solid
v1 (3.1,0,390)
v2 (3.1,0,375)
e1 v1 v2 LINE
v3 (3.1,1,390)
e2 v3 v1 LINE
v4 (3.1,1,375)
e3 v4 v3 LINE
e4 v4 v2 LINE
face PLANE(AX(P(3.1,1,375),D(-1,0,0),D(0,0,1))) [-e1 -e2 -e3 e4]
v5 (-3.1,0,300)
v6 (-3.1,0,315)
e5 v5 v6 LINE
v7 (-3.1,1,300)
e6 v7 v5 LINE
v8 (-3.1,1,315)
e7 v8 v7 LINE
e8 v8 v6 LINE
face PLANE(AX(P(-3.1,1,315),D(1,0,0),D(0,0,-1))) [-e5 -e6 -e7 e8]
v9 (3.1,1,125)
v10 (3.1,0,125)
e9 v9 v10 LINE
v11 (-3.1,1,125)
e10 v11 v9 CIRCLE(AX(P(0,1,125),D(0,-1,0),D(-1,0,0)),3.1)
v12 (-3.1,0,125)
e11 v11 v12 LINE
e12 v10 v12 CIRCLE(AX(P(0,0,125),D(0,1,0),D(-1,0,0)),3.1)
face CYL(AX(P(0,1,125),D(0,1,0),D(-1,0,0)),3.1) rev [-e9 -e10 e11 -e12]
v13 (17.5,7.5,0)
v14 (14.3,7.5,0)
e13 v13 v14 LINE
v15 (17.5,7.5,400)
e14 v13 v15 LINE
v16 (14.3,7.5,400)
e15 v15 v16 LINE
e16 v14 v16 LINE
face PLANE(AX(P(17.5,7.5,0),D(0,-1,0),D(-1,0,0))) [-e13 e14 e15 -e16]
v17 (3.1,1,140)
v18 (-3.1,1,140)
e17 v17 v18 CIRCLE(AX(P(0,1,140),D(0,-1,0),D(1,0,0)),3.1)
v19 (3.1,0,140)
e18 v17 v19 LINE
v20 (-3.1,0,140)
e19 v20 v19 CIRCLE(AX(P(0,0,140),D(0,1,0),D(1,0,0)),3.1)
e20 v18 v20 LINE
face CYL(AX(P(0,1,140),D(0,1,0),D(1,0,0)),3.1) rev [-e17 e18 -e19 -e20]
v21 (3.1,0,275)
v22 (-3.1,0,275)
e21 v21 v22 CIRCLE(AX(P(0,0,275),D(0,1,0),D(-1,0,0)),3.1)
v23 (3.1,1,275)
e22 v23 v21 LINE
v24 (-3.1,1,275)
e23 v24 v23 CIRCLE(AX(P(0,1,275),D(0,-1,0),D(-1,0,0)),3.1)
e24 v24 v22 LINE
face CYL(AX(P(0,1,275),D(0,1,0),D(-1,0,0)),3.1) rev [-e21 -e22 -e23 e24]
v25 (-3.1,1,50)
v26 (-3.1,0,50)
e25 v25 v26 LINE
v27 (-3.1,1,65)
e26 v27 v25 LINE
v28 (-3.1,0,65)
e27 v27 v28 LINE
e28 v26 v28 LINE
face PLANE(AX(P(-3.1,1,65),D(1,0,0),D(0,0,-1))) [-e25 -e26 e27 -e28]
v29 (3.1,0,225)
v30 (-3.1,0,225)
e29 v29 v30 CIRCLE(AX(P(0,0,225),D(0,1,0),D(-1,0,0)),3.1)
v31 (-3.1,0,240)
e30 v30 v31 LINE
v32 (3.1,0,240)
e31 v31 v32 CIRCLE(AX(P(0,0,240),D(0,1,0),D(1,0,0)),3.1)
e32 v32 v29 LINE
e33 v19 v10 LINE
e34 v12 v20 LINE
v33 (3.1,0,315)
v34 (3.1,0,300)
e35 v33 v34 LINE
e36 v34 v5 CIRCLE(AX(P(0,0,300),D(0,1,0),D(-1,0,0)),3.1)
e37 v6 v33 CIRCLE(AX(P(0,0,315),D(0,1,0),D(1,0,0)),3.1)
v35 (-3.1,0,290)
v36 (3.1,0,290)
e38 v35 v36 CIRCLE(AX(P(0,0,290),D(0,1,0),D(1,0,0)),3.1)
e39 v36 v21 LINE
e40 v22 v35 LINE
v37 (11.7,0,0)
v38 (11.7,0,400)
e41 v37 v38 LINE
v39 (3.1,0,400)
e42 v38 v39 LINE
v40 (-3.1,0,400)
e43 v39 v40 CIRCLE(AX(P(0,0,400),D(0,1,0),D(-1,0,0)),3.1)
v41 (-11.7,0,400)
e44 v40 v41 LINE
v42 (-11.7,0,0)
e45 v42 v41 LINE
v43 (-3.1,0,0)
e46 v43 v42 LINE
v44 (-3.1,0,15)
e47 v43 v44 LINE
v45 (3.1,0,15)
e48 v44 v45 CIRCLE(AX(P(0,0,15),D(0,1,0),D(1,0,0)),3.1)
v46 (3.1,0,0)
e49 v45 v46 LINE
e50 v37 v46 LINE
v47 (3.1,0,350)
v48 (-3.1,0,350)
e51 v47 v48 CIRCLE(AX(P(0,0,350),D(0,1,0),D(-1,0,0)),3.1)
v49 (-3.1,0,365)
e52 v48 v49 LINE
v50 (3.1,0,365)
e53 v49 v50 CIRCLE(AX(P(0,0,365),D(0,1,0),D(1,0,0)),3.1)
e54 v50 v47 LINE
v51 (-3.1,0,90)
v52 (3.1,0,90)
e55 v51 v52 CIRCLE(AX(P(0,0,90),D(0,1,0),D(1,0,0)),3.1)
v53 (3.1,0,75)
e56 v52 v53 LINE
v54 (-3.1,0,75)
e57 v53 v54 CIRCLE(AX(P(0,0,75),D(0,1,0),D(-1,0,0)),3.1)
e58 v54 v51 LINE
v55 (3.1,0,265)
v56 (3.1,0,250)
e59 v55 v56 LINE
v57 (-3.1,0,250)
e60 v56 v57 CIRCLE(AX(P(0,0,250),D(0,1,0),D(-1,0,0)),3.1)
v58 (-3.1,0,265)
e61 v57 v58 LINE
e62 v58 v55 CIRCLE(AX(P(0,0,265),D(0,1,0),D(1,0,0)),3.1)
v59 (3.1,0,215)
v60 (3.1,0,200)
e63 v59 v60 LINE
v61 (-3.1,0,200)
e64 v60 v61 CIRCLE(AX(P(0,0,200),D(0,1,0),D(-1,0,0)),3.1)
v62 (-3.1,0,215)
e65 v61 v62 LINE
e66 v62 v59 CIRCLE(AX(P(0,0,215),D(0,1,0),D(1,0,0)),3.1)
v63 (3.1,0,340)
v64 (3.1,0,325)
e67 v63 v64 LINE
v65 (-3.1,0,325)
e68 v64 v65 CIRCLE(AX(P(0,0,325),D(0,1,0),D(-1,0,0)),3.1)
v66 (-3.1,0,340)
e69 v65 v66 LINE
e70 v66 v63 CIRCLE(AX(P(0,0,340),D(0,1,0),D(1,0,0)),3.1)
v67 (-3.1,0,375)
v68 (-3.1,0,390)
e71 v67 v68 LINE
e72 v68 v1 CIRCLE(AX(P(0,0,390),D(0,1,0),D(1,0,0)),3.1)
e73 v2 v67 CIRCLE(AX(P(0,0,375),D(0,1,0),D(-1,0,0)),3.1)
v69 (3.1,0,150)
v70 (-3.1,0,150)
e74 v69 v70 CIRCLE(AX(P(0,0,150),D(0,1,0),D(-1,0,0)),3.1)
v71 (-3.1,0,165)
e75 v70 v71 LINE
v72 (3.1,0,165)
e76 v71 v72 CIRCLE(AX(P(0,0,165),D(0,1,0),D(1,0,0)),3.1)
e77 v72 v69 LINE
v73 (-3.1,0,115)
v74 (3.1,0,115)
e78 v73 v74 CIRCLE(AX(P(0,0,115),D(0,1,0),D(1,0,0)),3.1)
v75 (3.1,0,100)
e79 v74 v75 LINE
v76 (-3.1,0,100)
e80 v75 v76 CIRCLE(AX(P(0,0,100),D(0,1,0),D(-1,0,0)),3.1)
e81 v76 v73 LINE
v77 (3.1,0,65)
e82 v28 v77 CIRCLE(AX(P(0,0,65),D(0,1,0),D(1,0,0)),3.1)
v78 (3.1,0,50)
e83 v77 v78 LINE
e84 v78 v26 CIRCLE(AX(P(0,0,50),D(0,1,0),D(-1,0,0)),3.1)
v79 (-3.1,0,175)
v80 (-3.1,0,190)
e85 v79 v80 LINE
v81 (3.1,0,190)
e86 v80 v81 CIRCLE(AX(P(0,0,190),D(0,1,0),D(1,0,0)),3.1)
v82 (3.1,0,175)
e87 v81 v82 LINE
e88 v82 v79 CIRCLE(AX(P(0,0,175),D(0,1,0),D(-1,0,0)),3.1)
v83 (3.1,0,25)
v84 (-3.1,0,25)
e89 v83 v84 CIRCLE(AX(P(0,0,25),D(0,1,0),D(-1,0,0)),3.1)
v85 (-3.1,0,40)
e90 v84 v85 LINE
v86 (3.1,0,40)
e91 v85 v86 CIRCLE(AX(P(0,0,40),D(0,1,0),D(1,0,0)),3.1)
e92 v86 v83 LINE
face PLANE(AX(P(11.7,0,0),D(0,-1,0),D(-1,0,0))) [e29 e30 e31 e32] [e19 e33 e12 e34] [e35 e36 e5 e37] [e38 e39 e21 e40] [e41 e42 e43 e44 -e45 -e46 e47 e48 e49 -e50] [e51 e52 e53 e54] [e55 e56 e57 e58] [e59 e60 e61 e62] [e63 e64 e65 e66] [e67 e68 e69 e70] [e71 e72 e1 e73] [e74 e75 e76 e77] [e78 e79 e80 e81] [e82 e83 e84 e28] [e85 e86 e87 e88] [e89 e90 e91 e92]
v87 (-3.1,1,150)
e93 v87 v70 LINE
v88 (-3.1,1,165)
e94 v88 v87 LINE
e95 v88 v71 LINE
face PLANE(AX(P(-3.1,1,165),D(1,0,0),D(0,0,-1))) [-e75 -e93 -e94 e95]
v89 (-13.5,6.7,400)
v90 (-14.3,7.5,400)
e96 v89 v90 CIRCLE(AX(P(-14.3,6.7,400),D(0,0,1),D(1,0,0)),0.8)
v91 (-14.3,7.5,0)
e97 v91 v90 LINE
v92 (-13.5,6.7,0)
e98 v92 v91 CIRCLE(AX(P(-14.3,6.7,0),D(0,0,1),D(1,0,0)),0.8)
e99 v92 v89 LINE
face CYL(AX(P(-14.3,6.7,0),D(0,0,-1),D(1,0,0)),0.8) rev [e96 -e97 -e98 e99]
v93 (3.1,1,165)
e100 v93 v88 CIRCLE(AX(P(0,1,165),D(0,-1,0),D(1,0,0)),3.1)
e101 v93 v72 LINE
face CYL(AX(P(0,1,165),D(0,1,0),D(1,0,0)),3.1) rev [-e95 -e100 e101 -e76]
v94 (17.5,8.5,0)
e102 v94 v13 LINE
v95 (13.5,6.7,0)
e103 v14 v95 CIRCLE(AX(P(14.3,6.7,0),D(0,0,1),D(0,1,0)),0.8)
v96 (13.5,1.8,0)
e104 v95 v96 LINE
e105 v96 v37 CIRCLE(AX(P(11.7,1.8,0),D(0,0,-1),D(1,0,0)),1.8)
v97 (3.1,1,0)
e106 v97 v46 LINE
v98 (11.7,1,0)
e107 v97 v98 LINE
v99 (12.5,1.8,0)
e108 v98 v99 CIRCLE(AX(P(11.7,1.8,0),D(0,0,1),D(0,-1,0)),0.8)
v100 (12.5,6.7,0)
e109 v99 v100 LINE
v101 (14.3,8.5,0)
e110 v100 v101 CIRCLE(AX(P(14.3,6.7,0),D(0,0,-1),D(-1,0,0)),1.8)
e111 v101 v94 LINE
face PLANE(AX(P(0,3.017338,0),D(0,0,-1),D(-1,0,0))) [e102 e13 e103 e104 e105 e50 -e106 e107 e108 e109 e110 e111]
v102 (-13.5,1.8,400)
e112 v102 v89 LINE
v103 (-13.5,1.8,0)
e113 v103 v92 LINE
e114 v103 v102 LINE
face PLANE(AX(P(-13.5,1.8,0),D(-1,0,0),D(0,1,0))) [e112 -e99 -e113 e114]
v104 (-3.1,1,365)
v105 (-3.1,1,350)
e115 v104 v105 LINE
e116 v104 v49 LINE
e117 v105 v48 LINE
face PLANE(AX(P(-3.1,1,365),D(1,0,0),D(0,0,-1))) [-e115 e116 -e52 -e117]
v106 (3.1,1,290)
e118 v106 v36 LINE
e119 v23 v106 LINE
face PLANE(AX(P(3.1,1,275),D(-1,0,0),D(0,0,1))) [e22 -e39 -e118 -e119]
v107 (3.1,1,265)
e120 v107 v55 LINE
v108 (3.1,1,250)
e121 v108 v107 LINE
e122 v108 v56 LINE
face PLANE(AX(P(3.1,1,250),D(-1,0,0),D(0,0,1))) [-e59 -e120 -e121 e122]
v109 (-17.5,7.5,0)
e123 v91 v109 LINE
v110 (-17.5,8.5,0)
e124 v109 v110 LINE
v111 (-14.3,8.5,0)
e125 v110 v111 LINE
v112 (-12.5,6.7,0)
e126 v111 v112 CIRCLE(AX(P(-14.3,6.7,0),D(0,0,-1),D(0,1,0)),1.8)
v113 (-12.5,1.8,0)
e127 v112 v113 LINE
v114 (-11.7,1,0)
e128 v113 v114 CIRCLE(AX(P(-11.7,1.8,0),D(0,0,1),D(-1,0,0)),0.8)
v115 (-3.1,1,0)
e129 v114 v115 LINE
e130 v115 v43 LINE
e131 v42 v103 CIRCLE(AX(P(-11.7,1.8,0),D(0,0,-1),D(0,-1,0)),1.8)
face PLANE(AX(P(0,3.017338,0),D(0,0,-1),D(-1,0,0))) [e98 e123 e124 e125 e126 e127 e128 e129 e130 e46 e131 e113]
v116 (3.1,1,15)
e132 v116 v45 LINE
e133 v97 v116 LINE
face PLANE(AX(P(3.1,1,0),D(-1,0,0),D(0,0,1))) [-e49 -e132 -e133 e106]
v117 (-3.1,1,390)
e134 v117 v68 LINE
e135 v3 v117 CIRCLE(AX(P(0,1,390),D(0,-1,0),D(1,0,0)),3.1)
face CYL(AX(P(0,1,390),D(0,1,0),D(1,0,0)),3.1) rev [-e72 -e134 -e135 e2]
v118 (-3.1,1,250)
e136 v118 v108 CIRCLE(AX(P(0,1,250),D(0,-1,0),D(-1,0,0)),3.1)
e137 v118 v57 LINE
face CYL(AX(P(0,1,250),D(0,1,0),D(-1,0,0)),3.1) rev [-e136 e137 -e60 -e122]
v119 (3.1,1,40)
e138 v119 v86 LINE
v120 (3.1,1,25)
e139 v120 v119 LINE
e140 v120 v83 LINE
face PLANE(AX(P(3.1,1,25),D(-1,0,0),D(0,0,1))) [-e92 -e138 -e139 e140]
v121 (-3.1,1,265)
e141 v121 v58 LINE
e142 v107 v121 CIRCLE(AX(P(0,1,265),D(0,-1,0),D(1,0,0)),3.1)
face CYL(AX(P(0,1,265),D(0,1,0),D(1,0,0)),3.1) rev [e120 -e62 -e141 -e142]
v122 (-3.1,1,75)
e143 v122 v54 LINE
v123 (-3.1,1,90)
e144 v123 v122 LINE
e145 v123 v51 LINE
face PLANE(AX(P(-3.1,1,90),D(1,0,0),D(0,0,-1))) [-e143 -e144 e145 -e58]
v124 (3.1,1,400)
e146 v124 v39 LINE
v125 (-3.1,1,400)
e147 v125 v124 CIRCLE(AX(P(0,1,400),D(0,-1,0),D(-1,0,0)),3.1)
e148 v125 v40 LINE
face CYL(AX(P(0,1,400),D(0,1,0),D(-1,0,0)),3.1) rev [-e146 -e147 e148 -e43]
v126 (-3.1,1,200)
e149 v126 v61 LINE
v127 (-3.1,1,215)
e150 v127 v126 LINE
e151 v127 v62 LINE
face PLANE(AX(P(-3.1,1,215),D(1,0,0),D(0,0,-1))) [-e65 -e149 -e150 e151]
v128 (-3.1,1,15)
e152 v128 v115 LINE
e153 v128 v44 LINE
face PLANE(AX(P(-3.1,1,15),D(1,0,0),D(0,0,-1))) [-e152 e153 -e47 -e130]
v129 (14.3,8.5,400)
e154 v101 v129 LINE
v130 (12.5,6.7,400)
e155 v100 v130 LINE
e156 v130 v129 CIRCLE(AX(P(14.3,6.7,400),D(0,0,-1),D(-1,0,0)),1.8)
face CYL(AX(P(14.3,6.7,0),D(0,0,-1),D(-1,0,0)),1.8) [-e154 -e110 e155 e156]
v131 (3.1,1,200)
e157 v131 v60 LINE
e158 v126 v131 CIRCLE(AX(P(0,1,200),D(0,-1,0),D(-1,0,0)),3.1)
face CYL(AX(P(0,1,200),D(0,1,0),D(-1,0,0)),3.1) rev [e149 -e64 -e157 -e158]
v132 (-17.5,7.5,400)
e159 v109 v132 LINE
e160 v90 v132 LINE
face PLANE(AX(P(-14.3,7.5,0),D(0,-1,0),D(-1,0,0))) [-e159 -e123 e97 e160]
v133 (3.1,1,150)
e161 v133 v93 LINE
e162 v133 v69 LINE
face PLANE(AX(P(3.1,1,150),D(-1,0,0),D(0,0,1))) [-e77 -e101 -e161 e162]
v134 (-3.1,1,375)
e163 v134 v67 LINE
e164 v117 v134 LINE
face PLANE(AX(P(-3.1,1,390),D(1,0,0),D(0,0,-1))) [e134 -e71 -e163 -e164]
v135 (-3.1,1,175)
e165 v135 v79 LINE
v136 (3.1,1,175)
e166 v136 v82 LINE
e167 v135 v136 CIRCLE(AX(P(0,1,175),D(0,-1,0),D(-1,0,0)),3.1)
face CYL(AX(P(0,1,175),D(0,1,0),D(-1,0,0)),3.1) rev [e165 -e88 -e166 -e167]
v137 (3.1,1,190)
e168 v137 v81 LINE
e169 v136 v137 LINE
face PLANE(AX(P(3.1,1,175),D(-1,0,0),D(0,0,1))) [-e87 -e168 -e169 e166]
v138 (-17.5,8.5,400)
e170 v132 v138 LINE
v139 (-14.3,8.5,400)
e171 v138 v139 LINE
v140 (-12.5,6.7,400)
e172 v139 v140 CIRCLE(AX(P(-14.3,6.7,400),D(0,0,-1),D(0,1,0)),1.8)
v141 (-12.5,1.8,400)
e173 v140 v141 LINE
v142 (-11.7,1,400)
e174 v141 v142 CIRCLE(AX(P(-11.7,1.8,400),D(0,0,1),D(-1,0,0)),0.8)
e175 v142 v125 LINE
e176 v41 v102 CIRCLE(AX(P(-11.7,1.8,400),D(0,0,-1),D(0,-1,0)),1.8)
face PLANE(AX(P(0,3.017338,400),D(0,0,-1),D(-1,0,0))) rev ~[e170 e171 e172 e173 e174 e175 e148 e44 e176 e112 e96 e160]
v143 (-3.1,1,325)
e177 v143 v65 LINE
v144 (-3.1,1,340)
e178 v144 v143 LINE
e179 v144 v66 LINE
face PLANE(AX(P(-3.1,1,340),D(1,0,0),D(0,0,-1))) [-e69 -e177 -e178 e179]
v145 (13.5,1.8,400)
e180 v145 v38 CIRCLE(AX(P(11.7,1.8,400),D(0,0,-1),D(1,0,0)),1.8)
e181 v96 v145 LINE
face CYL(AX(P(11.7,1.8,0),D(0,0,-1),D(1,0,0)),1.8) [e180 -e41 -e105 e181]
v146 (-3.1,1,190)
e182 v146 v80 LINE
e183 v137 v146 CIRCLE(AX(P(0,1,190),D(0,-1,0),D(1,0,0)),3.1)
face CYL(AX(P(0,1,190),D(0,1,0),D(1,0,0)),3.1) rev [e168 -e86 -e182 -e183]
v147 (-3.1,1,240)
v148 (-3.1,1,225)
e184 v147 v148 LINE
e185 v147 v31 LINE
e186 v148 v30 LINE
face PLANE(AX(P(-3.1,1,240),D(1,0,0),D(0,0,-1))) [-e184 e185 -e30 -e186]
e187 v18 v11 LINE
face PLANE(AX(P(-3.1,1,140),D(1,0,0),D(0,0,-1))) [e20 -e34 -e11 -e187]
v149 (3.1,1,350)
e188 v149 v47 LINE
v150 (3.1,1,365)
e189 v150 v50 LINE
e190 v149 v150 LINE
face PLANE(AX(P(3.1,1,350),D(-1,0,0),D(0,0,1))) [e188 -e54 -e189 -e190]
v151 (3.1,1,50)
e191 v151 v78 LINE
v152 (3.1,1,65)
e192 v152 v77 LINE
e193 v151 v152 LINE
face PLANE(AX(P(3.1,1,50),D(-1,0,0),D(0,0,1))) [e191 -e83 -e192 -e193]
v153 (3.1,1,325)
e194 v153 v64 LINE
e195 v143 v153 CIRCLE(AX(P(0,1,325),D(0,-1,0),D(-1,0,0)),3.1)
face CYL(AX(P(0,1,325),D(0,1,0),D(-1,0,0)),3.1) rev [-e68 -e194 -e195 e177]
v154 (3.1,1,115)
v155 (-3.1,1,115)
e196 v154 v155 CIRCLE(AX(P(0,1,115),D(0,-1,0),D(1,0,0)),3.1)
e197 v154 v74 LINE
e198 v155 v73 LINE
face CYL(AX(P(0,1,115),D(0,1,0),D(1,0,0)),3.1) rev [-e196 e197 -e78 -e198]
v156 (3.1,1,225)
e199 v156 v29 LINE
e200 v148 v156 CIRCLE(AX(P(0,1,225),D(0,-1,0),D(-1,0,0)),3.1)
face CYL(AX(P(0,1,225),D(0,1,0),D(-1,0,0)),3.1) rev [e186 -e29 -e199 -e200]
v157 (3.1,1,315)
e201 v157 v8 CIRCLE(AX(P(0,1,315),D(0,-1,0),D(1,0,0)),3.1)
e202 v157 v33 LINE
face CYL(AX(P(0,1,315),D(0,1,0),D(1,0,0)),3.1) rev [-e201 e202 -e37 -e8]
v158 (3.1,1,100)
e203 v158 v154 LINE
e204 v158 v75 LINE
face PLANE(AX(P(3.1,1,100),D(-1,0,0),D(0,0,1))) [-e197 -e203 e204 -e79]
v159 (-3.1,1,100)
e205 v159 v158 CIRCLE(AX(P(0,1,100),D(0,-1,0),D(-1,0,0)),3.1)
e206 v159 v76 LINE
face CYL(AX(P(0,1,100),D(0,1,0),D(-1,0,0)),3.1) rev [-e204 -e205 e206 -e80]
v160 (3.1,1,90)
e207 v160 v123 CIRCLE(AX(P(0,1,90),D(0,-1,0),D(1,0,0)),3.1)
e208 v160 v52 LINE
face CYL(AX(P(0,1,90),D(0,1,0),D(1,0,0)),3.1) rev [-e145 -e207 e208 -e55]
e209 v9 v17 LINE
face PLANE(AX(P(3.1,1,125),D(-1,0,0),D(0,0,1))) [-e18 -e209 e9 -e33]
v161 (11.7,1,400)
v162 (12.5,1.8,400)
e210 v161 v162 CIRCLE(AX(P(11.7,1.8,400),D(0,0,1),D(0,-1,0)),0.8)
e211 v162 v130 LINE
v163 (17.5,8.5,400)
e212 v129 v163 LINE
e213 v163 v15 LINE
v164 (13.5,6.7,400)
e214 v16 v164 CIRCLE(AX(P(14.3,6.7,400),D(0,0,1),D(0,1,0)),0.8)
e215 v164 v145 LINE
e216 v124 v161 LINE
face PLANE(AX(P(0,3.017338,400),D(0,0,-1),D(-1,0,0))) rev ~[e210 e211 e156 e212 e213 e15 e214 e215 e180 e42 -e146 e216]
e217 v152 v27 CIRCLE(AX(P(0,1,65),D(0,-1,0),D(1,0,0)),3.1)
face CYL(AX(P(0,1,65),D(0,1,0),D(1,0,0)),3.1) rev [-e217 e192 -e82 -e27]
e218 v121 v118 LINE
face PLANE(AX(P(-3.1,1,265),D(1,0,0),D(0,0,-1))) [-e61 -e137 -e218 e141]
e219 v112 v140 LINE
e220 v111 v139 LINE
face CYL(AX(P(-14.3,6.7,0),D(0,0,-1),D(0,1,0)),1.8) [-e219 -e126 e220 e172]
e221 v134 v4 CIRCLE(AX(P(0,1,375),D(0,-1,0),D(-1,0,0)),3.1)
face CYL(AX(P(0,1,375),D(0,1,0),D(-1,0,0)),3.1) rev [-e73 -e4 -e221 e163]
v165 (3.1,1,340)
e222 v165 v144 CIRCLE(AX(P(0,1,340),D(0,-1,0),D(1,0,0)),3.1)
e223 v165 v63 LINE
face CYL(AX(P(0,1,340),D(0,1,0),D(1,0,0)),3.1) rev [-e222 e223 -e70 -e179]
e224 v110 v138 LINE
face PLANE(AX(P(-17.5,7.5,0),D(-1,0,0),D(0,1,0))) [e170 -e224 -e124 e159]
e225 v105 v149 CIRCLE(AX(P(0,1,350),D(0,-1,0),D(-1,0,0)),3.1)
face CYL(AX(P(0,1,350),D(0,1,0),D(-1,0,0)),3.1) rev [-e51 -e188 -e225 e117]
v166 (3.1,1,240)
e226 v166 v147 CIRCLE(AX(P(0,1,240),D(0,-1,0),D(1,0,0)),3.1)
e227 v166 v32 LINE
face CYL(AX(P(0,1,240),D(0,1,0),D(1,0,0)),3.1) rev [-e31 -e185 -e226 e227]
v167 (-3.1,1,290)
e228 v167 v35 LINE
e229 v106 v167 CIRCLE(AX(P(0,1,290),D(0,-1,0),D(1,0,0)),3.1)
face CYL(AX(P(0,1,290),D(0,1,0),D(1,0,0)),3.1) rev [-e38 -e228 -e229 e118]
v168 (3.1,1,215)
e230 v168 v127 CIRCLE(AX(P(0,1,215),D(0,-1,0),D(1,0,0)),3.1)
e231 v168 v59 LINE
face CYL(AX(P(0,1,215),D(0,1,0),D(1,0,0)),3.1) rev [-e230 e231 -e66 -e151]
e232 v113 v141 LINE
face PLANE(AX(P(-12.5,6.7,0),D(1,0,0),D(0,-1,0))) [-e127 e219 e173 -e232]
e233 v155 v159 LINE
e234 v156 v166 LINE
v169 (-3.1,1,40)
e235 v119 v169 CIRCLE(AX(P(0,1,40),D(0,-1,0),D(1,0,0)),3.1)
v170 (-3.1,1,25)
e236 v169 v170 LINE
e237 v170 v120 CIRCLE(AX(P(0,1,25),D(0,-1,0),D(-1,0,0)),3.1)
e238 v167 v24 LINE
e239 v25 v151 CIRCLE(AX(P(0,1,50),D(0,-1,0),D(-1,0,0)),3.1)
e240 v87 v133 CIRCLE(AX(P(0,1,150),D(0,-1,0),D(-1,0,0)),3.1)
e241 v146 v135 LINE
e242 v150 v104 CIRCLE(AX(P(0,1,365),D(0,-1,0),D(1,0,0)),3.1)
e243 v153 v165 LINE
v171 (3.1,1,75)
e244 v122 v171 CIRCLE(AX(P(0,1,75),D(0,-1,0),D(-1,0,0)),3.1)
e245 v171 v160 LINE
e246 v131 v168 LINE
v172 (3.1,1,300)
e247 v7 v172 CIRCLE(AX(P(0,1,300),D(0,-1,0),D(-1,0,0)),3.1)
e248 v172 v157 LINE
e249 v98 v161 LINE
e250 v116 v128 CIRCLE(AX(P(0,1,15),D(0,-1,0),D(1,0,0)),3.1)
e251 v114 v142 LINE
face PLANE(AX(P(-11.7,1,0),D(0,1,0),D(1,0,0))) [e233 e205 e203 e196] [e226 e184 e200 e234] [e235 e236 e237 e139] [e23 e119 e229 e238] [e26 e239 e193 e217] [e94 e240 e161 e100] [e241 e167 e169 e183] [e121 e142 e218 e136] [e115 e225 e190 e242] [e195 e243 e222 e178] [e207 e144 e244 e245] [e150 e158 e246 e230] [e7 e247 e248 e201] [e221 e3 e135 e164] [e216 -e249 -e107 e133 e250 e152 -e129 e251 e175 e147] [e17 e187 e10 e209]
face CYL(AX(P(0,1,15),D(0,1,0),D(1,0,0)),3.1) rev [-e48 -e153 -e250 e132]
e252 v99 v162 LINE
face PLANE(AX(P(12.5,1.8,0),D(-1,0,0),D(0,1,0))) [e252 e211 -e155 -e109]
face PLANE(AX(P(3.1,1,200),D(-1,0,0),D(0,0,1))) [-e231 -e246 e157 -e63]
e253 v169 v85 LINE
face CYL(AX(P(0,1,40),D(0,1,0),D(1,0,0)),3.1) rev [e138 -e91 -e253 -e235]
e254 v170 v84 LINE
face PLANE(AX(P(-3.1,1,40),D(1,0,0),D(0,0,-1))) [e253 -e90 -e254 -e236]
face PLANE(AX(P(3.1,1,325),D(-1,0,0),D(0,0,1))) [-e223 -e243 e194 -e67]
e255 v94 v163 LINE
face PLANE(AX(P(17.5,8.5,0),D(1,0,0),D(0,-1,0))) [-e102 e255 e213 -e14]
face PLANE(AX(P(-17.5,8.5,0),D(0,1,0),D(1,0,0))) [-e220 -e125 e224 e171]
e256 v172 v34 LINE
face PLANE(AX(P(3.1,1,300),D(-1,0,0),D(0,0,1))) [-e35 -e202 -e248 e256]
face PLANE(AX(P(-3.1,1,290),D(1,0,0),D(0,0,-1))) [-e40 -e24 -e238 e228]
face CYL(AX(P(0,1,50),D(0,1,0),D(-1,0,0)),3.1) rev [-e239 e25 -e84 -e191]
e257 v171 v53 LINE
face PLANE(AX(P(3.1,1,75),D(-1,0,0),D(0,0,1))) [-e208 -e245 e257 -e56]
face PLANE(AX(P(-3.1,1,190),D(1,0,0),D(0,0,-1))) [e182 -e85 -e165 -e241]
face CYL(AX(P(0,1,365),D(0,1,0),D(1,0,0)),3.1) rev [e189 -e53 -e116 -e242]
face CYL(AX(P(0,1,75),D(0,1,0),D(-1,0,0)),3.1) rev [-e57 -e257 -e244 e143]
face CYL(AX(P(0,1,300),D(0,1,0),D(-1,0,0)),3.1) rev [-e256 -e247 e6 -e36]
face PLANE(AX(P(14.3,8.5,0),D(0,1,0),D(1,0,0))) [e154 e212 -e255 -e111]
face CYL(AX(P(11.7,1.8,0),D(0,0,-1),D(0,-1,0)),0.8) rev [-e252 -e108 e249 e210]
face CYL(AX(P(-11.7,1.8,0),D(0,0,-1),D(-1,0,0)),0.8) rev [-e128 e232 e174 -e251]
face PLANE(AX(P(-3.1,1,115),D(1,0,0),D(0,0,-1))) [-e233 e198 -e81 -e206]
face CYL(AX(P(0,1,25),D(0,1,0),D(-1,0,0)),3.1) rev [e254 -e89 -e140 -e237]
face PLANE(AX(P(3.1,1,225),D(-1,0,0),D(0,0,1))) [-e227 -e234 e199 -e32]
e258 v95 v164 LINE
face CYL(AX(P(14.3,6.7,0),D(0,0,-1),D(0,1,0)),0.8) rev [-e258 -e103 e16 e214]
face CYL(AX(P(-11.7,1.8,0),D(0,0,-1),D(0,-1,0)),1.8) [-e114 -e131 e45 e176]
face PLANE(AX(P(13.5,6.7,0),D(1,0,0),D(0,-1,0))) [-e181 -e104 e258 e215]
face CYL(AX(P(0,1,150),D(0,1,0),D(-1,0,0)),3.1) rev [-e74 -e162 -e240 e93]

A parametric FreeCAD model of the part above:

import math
import FreeCAD as App
import Part
import Sketcher

doc = App.newDocument("Part")
body = doc.addObject("PartDesign::Body", "Body")

# Sketch on XY plane
sketch1 = doc.addObject("Sketcher::SketchObject", "Sketch")
body.addObject(sketch1)
sketch1.AttachmentSupport = (doc.XY_Plane, [""])
sketch1.MapMode = "FlatFace"
sketch1.addGeometry(Part.ArcOfCircle(Part.Circle(App.Vector(-11.7, 1.8, 0), App.Vector(0, 0, 1), 1.8), math.radians(180), math.radians(270)), False)
sketch1.addGeometry(Part.LineSegment(App.Vector(-11.7, 0, 0), App.Vector(11.7, 0, 0)), False)
sketch1.addGeometry(Part.ArcOfCircle(Part.Circle(App.Vector(11.7, 1.8, 0), App.Vector(0, 0, 1), 1.8), math.radians(-90), math.radians(0)), False)
sketch1.addGeometry(Part.LineSegment(App.Vector(13.5, 1.8, 0), App.Vector(13.5, 6.7, 0)), False)
sketch1.addGeometry(Part.ArcOfCircle(Part.Circle(App.Vector(14.3, 6.7, 0), App.Vector(0, 0, 1), 0.8), math.radians(90), math.radians(180)), False)
sketch1.addGeometry(Part.LineSegment(App.Vector(14.3, 7.5, 0), App.Vector(17.5, 7.5, 0)), False)
sketch1.addGeometry(Part.LineSegment(App.Vector(17.5, 7.5, 0), App.Vector(17.5, 8.5, 0)), False)
sketch1.addGeometry(Part.LineSegment(App.Vector(17.5, 8.5, 0), App.Vector(14.3, 8.5, 0)), False)
sketch1.addGeometry(Part.ArcOfCircle(Part.Circle(App.Vector(14.3, 6.7, 0), App.Vector(0, 0, 1), 1.8), math.radians(90), math.radians(180)), False)
sketch1.addGeometry(Part.LineSegment(App.Vector(12.5, 6.7, 0), App.Vector(12.5, 1.8, 0)), False)
sketch1.addGeometry(Part.ArcOfCircle(Part.Circle(App.Vector(11.7, 1.8, 0), App.Vector(0, 0, 1), 0.8), math.radians(-90), math.radians(0)), False)
sketch1.addGeometry(Part.LineSegment(App.Vector(11.7, 1, 0), App.Vector(-11.7, 1, 0)), False)
sketch1.addGeometry(Part.ArcOfCircle(Part.Circle(App.Vector(-11.7, 1.8, 0), App.Vector(0, 0, 1), 0.8), math.radians(180), math.radians(270)), False)
sketch1.addGeometry(Part.LineSegment(App.Vector(-12.5, 1.8, 0), App.Vector(-12.5, 6.7, 0)), False)
sketch1.addGeometry(Part.ArcOfCircle(Part.Circle(App.Vector(-14.3, 6.7, 0), App.Vector(0, 0, 1), 1.8), math.radians(0), math.radians(90)), False)
sketch1.addGeometry(Part.LineSegment(App.Vector(-14.3, 8.5, 0), App.Vector(-17.5, 8.5, 0)), False)
sketch1.addGeometry(Part.LineSegment(App.Vector(-17.5, 8.5, 0), App.Vector(-17.5, 7.5, 0)), False)
sketch1.addGeometry(Part.LineSegment(App.Vector(-17.5, 7.5, 0), App.Vector(-14.3, 7.5, 0)), False)
sketch1.addGeometry(Part.ArcOfCircle(Part.Circle(App.Vector(-14.3, 6.7, 0), App.Vector(0, 0, 1), 0.8), math.radians(0), math.radians(90)), False)
sketch1.addGeometry(Part.LineSegment(App.Vector(-13.5, 6.7, 0), App.Vector(-13.5, 1.8, 0)), False)
sketch1.addConstraint(Sketcher.Constraint("Tangent", 0, 2, 1, 1))
sketch1.addConstraint(Sketcher.Constraint("Tangent", 1, 2, 2, 1))
sketch1.addConstraint(Sketcher.Constraint("Tangent", 2, 2, 3, 1))
sketch1.addConstraint(Sketcher.Constraint("Tangent", 3, 2, 4, 2))
sketch1.addConstraint(Sketcher.Constraint("Tangent", 4, 1, 5, 1))
sketch1.addConstraint(Sketcher.Constraint("Coincident", 5, 2, 6, 1))
sketch1.addConstraint(Sketcher.Constraint("Coincident", 6, 2, 7, 1))
sketch1.addConstraint(Sketcher.Constraint("Tangent", 7, 2, 8, 1))
sketch1.addConstraint(Sketcher.Constraint("Tangent", 8, 2, 9, 1))
sketch1.addConstraint(Sketcher.Constraint("Tangent", 9, 2, 10, 2))
sketch1.addConstraint(Sketcher.Constraint("Tangent", 10, 1, 11, 1))
sketch1.addConstraint(Sketcher.Constraint("Tangent", 11, 2, 12, 2))
sketch1.addConstraint(Sketcher.Constraint("Tangent", 12, 1, 13, 1))
sketch1.addConstraint(Sketcher.Constraint("Tangent", 13, 2, 14, 1))
sketch1.addConstraint(Sketcher.Constraint("Tangent", 14, 2, 15, 1))
sketch1.addConstraint(Sketcher.Constraint("Coincident", 15, 2, 16, 1))
sketch1.addConstraint(Sketcher.Constraint("Coincident", 16, 2, 17, 1))
sketch1.addConstraint(Sketcher.Constraint("Tangent", 17, 2, 18, 2))
sketch1.addConstraint(Sketcher.Constraint("Tangent", 18, 1, 19, 1))
sketch1.addConstraint(Sketcher.Constraint("Tangent", 19, 2, 0, 1))
sketch1.addConstraint(Sketcher.Constraint("Horizontal", 1))
sketch1.addConstraint(Sketcher.Constraint("Vertical", 3))
sketch1.addConstraint(Sketcher.Constraint("Horizontal", 5))
sketch1.addConstraint(Sketcher.Constraint("Vertical", 6))
sketch1.addConstraint(Sketcher.Constraint("Horizontal", 7))
sketch1.addConstraint(Sketcher.Constraint("Vertical", 9))
sketch1.addConstraint(Sketcher.Constraint("Horizontal", 11))
sketch1.addConstraint(Sketcher.Constraint("Vertical", 13))
sketch1.addConstraint(Sketcher.Constraint("Horizontal", 15))
sketch1.addConstraint(Sketcher.Constraint("Vertical", 16))
sketch1.addConstraint(Sketcher.Constraint("Horizontal", 17))
sketch1.addConstraint(Sketcher.Constraint("Vertical", 19))
sketch1.addConstraint(Sketcher.Constraint("Coincident", 8, 3, 4, 3))
sketch1.addConstraint(Sketcher.Constraint("Coincident", 10, 3, 2, 3))
sketch1.addConstraint(Sketcher.Constraint("Coincident", 12, 3, 0, 3))
sketch1.addConstraint(Sketcher.Constraint("Coincident", 18, 3, 14, 3))
sketch1.addConstraint(Sketcher.Constraint("Equal", 0, 2))
sketch1.addConstraint(Sketcher.Constraint("Equal", 2, 8))
sketch1.addConstraint(Sketcher.Constraint("Equal", 8, 14))
sketch1.addConstraint(Sketcher.Constraint("Symmetric", 0, 2, 1, 2, -1, 1))
sketch1.addConstraint(Sketcher.Constraint("Symmetric", 6, 2, 15, 2, -2))
sketch1.addConstraint(Sketcher.Constraint("Radius", 0, 1.8))
sketch1.addConstraint(Sketcher.Constraint("Radius", 4, 0.8))
sketch1.addConstraint(Sketcher.Constraint("DistanceX", 1, 1, 1, 2, 23.4))
sketch1.addConstraint(Sketcher.Constraint("DistanceX", 5, 1, 5, 2, 3.2))
sketch1.addConstraint(Sketcher.Constraint("DistanceY", 3, 1, 3, 2, 4.9))
pad1 = doc.addObject("PartDesign::Pad", "Pad")
body.addObject(pad1)
pad1.Profile = sketch1
pad1.Length = 400

# Sketch on XZ plane
sketch2 = doc.addObject("Sketcher::SketchObject", "Sketch001")
body.addObject(sketch2)
sketch2.AttachmentSupport = (doc.XZ_Plane, [""])
sketch2.MapMode = "FlatFace"
sketch2.AttachmentOffset = App.Placement(App.Vector(0, 0, -1), App.Rotation())
sketch2.addGeometry(Part.LineSegment(App.Vector(-3.1, 375, 0), App.Vector(-3.1, 390, 0)), False)
sketch2.addGeometry(Part.ArcOfCircle(Part.Circle(App.Vector(0, 390, 0), App.Vector(0, 0, 1), 3.1), math.radians(0), math.radians(180)), False)
sketch2.addGeometry(Part.LineSegment(App.Vector(3.1, 390, 0), App.Vector(3.1, 375, 0)), False)
sketch2.addGeometry(Part.ArcOfCircle(Part.Circle(App.Vector(0, 375, 0), App.Vector(0, 0, 1), 3.1), math.radians(180), math.radians(360)), False)
sketch2.addGeometry(Part.LineSegment(App.Vector(-3.1, 350, 0), App.Vector(-3.1, 365, 0)), False)
sketch2.addGeometry(Part.ArcOfCircle(Part.Circle(App.Vector(0, 365, 0), App.Vector(0, 0, 1), 3.1), math.radians(0), math.radians(180)), False)
sketch2.addGeometry(Part.LineSegment(App.Vector(3.1, 365, 0), App.Vector(3.1, 350, 0)), False)
sketch2.addGeometry(Part.ArcOfCircle(Part.Circle(App.Vector(0, 350, 0), App.Vector(0, 0, 1), 3.1), math.radians(180), math.radians(360)), False)
sketch2.addGeometry(Part.LineSegment(App.Vector(-3.1, 325, 0), App.Vector(-3.1, 340, 0)), False)
sketch2.addGeometry(Part.ArcOfCircle(Part.Circle(App.Vector(0, 340, 0), App.Vector(0, 0, 1), 3.1), math.radians(0), math.radians(180)), False)
sketch2.addGeometry(Part.LineSegment(App.Vector(3.1, 340, 0), App.Vector(3.1, 325, 0)), False)
sketch2.addGeometry(Part.ArcOfCircle(Part.Circle(App.Vector(0, 325, 0), App.Vector(0, 0, 1), 3.1), math.radians(180), math.radians(360)), False)
sketch2.addGeometry(Part.LineSegment(App.Vector(-3.1, 300, 0), App.Vector(-3.1, 315, 0)), False)
sketch2.addGeometry(Part.ArcOfCircle(Part.Circle(App.Vector(0, 315, 0), App.Vector(0, 0, 1), 3.1), math.radians(0), math.radians(180)), False)
sketch2.addGeometry(Part.LineSegment(App.Vector(3.1, 315, 0), App.Vector(3.1, 300, 0)), False)
sketch2.addGeometry(Part.ArcOfCircle(Part.Circle(App.Vector(0, 300, 0), App.Vector(0, 0, 1), 3.1), math.radians(180), math.radians(360)), False)
sketch2.addGeometry(Part.LineSegment(App.Vector(-3.1, 400, 0), App.Vector(-3.1, 415, 0)), False)
sketch2.addGeometry(Part.ArcOfCircle(Part.Circle(App.Vector(0, 415, 0), App.Vector(0, 0, 1), 3.1), math.radians(0), math.radians(180)), False)
sketch2.addGeometry(Part.LineSegment(App.Vector(3.1, 415, 0), App.Vector(3.1, 400, 0)), False)
sketch2.addGeometry(Part.ArcOfCircle(Part.Circle(App.Vector(0, 400, 0), App.Vector(0, 0, 1), 3.1), math.radians(180), math.radians(360)), False)
sketch2.addGeometry(Part.LineSegment(App.Vector(-3.1, 275, 0), App.Vector(-3.1, 290, 0)), False)
sketch2.addGeometry(Part.ArcOfCircle(Part.Circle(App.Vector(0, 290, 0), App.Vector(0, 0, 1), 3.1), math.radians(0), math.radians(180)), False)
sketch2.addGeometry(Part.LineSegment(App.Vector(3.1, 290, 0), App.Vector(3.1, 275, 0)), False)
sketch2.addGeometry(Part.ArcOfCircle(Part.Circle(App.Vector(0, 275, 0), App.Vector(0, 0, 1), 3.1), math.radians(180), math.radians(360)), False)
sketch2.addGeometry(Part.LineSegment(App.Vector(-3.1, 250, 0), App.Vector(-3.1, 265, 0)), False)
sketch2.addGeometry(Part.ArcOfCircle(Part.Circle(App.Vector(0, 265, 0), App.Vector(0, 0, 1), 3.1), math.radians(0), math.radians(180)), False)
sketch2.addGeometry(Part.LineSegment(App.Vector(3.1, 265, 0), App.Vector(3.1, 250, 0)), False)
sketch2.addGeometry(Part.ArcOfCircle(Part.Circle(App.Vector(0, 250, 0), App.Vector(0, 0, 1), 3.1), math.radians(180), math.radians(360)), False)
sketch2.addGeometry(Part.LineSegment(App.Vector(-3.1, 225, 0), App.Vector(-3.1, 240, 0)), False)
sketch2.addGeometry(Part.ArcOfCircle(Part.Circle(App.Vector(0, 240, 0), App.Vector(0, 0, 1), 3.1), math.radians(0), math.radians(180)), False)
sketch2.addGeometry(Part.LineSegment(App.Vector(3.1, 240, 0), App.Vector(3.1, 225, 0)), False)
sketch2.addGeometry(Part.ArcOfCircle(Part.Circle(App.Vector(0, 225, 0), App.Vector(0, 0, 1), 3.1), math.radians(180), math.radians(360)), False)
sketch2.addGeometry(Part.LineSegment(App.Vector(-3.1, 200, 0), App.Vector(-3.1, 215, 0)), False)
sketch2.addGeometry(Part.ArcOfCircle(Part.Circle(App.Vector(0, 215, 0), App.Vector(0, 0, 1), 3.1), math.radians(0), math.radians(180)), False)
sketch2.addGeometry(Part.LineSegment(App.Vector(3.1, 215, 0), App.Vector(3.1, 200, 0)), False)
sketch2.addGeometry(Part.ArcOfCircle(Part.Circle(App.Vector(0, 200, 0), App.Vector(0, 0, 1), 3.1), math.radians(180), math.radians(360)), False)
sketch2.addGeometry(Part.LineSegment(App.Vector(-3.1, 175, 0), App.Vector(-3.1, 190, 0)), False)
sketch2.addGeometry(Part.ArcOfCircle(Part.Circle(App.Vector(0, 190, 0), App.Vector(0, 0, 1), 3.1), math.radians(0), math.radians(180)), False)
sketch2.addGeometry(Part.LineSegment(App.Vector(3.1, 190, 0), App.Vector(3.1, 175, 0)), False)
sketch2.addGeometry(Part.ArcOfCircle(Part.Circle(App.Vector(0, 175, 0), App.Vector(0, 0, 1), 3.1), math.radians(180), math.radians(360)), False)
sketch2.addGeometry(Part.LineSegment(App.Vector(-3.1, 150, 0), App.Vector(-3.1, 165, 0)), False)
sketch2.addGeometry(Part.ArcOfCircle(Part.Circle(App.Vector(0, 165, 0), App.Vector(0, 0, 1), 3.1), math.radians(0), math.radians(180)), False)
sketch2.addGeometry(Part.LineSegment(App.Vector(3.1, 165, 0), App.Vector(3.1, 150, 0)), False)
sketch2.addGeometry(Part.ArcOfCircle(Part.Circle(App.Vector(0, 150, 0), App.Vector(0, 0, 1), 3.1), math.radians(180), math.radians(360)), False)
sketch2.addGeometry(Part.LineSegment(App.Vector(-3.1, 125, 0), App.Vector(-3.1, 140, 0)), False)
sketch2.addGeometry(Part.ArcOfCircle(Part.Circle(App.Vector(0, 140, 0), App.Vector(0, 0, 1), 3.1), math.radians(0), math.radians(180)), False)
sketch2.addGeometry(Part.LineSegment(App.Vector(3.1, 140, 0), App.Vector(3.1, 125, 0)), False)
sketch2.addGeometry(Part.ArcOfCircle(Part.Circle(App.Vector(0, 125, 0), App.Vector(0, 0, 1), 3.1), math.radians(180), math.radians(360)), False)
sketch2.addGeometry(Part.LineSegment(App.Vector(-3.1, 100, 0), App.Vector(-3.1, 115, 0)), False)
sketch2.addGeometry(Part.ArcOfCircle(Part.Circle(App.Vector(0, 115, 0), App.Vector(0, 0, 1), 3.1), math.radians(0), math.radians(180)), False)
sketch2.addGeometry(Part.LineSegment(App.Vector(3.1, 115, 0), App.Vector(3.1, 100, 0)), False)
sketch2.addGeometry(Part.ArcOfCircle(Part.Circle(App.Vector(0, 100, 0), App.Vector(0, 0, 1), 3.1), math.radians(180), math.radians(360)), False)
sketch2.addGeometry(Part.LineSegment(App.Vector(-3.1, 75, 0), App.Vector(-3.1, 90, 0)), False)
sketch2.addGeometry(Part.ArcOfCircle(Part.Circle(App.Vector(0, 90, 0), App.Vector(0, 0, 1), 3.1), math.radians(0), math.radians(180)), False)
sketch2.addGeometry(Part.LineSegment(App.Vector(3.1, 90, 0), App.Vector(3.1, 75, 0)), False)
sketch2.addGeometry(Part.ArcOfCircle(Part.Circle(App.Vector(0, 75, 0), App.Vector(0, 0, 1), 3.1), math.radians(180), math.radians(360)), False)
sketch2.addGeometry(Part.LineSegment(App.Vector(-3.1, 50, 0), App.Vector(-3.1, 65, 0)), False)
sketch2.addGeometry(Part.ArcOfCircle(Part.Circle(App.Vector(0, 65, 0), App.Vector(0, 0, 1), 3.1), math.radians(0), math.radians(180)), False)
sketch2.addGeometry(Part.LineSegment(App.Vector(3.1, 65, 0), App.Vector(3.1, 50, 0)), False)
sketch2.addGeometry(Part.ArcOfCircle(Part.Circle(App.Vector(0, 50, 0), App.Vector(0, 0, 1), 3.1), math.radians(180), math.radians(360)), False)
sketch2.addGeometry(Part.LineSegment(App.Vector(-3.1, 25, 0), App.Vector(-3.1, 40, 0)), False)
sketch2.addGeometry(Part.ArcOfCircle(Part.Circle(App.Vector(0, 40, 0), App.Vector(0, 0, 1), 3.1), math.radians(0), math.radians(180)), False)
sketch2.addGeometry(Part.LineSegment(App.Vector(3.1, 40, 0), App.Vector(3.1, 25, 0)), False)
sketch2.addGeometry(Part.ArcOfCircle(Part.Circle(App.Vector(0, 25, 0), App.Vector(0, 0, 1), 3.1), math.radians(180), math.radians(360)), False)
sketch2.addGeometry(Part.LineSegment(App.Vector(-3.1, 0, 0), App.Vector(-3.1, 15, 0)), False)
sketch2.addGeometry(Part.ArcOfCircle(Part.Circle(App.Vector(0, 15, 0), App.Vector(0, 0, 1), 3.1), math.radians(0), math.radians(180)), False)
sketch2.addGeometry(Part.LineSegment(App.Vector(3.1, 15, 0), App.Vector(3.1, 0, 0)), False)
sketch2.addGeometry(Part.ArcOfCircle(Part.Circle(App.Vector(0, 0, 0), App.Vector(0, 0, 1), 3.1), math.radians(180), math.radians(360)), False)
sketch2.addConstraint(Sketcher.Constraint("Tangent", 0, 2, 1, 2))
sketch2.addConstraint(Sketcher.Constraint("Tangent", 1, 1, 2, 1))
sketch2.addConstraint(Sketcher.Constraint("Tangent", 2, 2, 3, 2))
sketch2.addConstraint(Sketcher.Constraint("Tangent", 3, 1, 0, 1))
sketch2.addConstraint(Sketcher.Constraint("Tangent", 4, 2, 5, 2))
sketch2.addConstraint(Sketcher.Constraint("Tangent", 5, 1, 6, 1))
sketch2.addConstraint(Sketcher.Constraint("Tangent", 6, 2, 7, 2))
sketch2.addConstraint(Sketcher.Constraint("Tangent", 7, 1, 4, 1))
sketch2.addConstraint(Sketcher.Constraint("Tangent", 8, 2, 9, 2))
sketch2.addConstraint(Sketcher.Constraint("Tangent", 9, 1, 10, 1))
sketch2.addConstraint(Sketcher.Constraint("Tangent", 10, 2, 11, 2))
sketch2.addConstraint(Sketcher.Constraint("Tangent", 11, 1, 8, 1))
sketch2.addConstraint(Sketcher.Constraint("Tangent", 12, 2, 13, 2))
sketch2.addConstraint(Sketcher.Constraint("Tangent", 13, 1, 14, 1))
sketch2.addConstraint(Sketcher.Constraint("Tangent", 14, 2, 15, 2))
sketch2.addConstraint(Sketcher.Constraint("Tangent", 15, 1, 12, 1))
sketch2.addConstraint(Sketcher.Constraint("Tangent", 16, 2, 17, 2))
sketch2.addConstraint(Sketcher.Constraint("Tangent", 17, 1, 18, 1))
sketch2.addConstraint(Sketcher.Constraint("Tangent", 18, 2, 19, 2))
sketch2.addConstraint(Sketcher.Constraint("Tangent", 19, 1, 16, 1))
sketch2.addConstraint(Sketcher.Constraint("Tangent", 20, 2, 21, 2))
sketch2.addConstraint(Sketcher.Constraint("Tangent", 21, 1, 22, 1))
sketch2.addConstraint(Sketcher.Constraint("Tangent", 22, 2, 23, 2))
sketch2.addConstraint(Sketcher.Constraint("Tangent", 23, 1, 20, 1))
sketch2.addConstraint(Sketcher.Constraint("Tangent", 24, 2, 25, 2))
sketch2.addConstraint(Sketcher.Constraint("Tangent", 25, 1, 26, 1))
sketch2.addConstraint(Sketcher.Constraint("Tangent", 26, 2, 27, 2))
sketch2.addConstraint(Sketcher.Constraint("Tangent", 27, 1, 24, 1))
sketch2.addConstraint(Sketcher.Constraint("Tangent", 28, 2, 29, 2))
sketch2.addConstraint(Sketcher.Constraint("Tangent", 29, 1, 30, 1))
sketch2.addConstraint(Sketcher.Constraint("Tangent", 30, 2, 31, 2))
sketch2.addConstraint(Sketcher.Constraint("Tangent", 31, 1, 28, 1))
sketch2.addConstraint(Sketcher.Constraint("Tangent", 32, 2, 33, 2))
sketch2.addConstraint(Sketcher.Constraint("Tangent", 33, 1, 34, 1))
sketch2.addConstraint(Sketcher.Constraint("Tangent", 34, 2, 35, 2))
sketch2.addConstraint(Sketcher.Constraint("Tangent", 35, 1, 32, 1))
sketch2.addConstraint(Sketcher.Constraint("Tangent", 36, 2, 37, 2))
sketch2.addConstraint(Sketcher.Constraint("Tangent", 37, 1, 38, 1))
sketch2.addConstraint(Sketcher.Constraint("Tangent", 38, 2, 39, 2))
sketch2.addConstraint(Sketcher.Constraint("Tangent", 39, 1, 36, 1))
sketch2.addConstraint(Sketcher.Constraint("Tangent", 40, 2, 41, 2))
sketch2.addConstraint(Sketcher.Constraint("Tangent", 41, 1, 42, 1))
sketch2.addConstraint(Sketcher.Constraint("Tangent", 42, 2, 43, 2))
sketch2.addConstraint(Sketcher.Constraint("Tangent", 43, 1, 40, 1))
sketch2.addConstraint(Sketcher.Constraint("Tangent", 44, 2, 45, 2))
sketch2.addConstraint(Sketcher.Constraint("Tangent", 45, 1, 46, 1))
sketch2.addConstraint(Sketcher.Constraint("Tangent", 46, 2, 47, 2))
sketch2.addConstraint(Sketcher.Constraint("Tangent", 47, 1, 44, 1))
sketch2.addConstraint(Sketcher.Constraint("Tangent", 48, 2, 49, 2))
sketch2.addConstraint(Sketcher.Constraint("Tangent", 49, 1, 50, 1))
sketch2.addConstraint(Sketcher.Constraint("Tangent", 50, 2, 51, 2))
sketch2.addConstraint(Sketcher.Constraint("Tangent", 51, 1, 48, 1))
sketch2.addConstraint(Sketcher.Constraint("Tangent", 52, 2, 53, 2))
sketch2.addConstraint(Sketcher.Constraint("Tangent", 53, 1, 54, 1))
sketch2.addConstraint(Sketcher.Constraint("Tangent", 54, 2, 55, 2))
sketch2.addConstraint(Sketcher.Constraint("Tangent", 55, 1, 52, 1))
sketch2.addConstraint(Sketcher.Constraint("Tangent", 56, 2, 57, 2))
sketch2.addConstraint(Sketcher.Constraint("Tangent", 57, 1, 58, 1))
sketch2.addConstraint(Sketcher.Constraint("Tangent", 58, 2, 59, 2))
sketch2.addConstraint(Sketcher.Constraint("Tangent", 59, 1, 56, 1))
sketch2.addConstraint(Sketcher.Constraint("Tangent", 60, 2, 61, 2))
sketch2.addConstraint(Sketcher.Constraint("Tangent", 61, 1, 62, 1))
sketch2.addConstraint(Sketcher.Constraint("Tangent", 62, 2, 63, 2))
sketch2.addConstraint(Sketcher.Constraint("Tangent", 63, 1, 60, 1))
sketch2.addConstraint(Sketcher.Constraint("Tangent", 64, 2, 65, 2))
sketch2.addConstraint(Sketcher.Constraint("Tangent", 65, 1, 66, 1))
sketch2.addConstraint(Sketcher.Constraint("Tangent", 66, 2, 67, 2))
sketch2.addConstraint(Sketcher.Constraint("Tangent", 67, 1, 64, 1))
sketch2.addConstraint(Sketcher.Constraint("Vertical", 0))
sketch2.addConstraint(Sketcher.Constraint("Vertical", 2))
sketch2.addConstraint(Sketcher.Constraint("Vertical", 4))
sketch2.addConstraint(Sketcher.Constraint("Vertical", 6))
sketch2.addConstraint(Sketcher.Constraint("Vertical", 8))
sketch2.addConstraint(Sketcher.Constraint("Vertical", 10))
sketch2.addConstraint(Sketcher.Constraint("Vertical", 12))
sketch2.addConstraint(Sketcher.Constraint("Vertical", 14))
sketch2.addConstraint(Sketcher.Constraint("Vertical", 16))
sketch2.addConstraint(Sketcher.Constraint("Vertical", 18))
sketch2.addConstraint(Sketcher.Constraint("Vertical", 20))
sketch2.addConstraint(Sketcher.Constraint("Vertical", 22))
sketch2.addConstraint(Sketcher.Constraint("Vertical", 24))
sketch2.addConstraint(Sketcher.Constraint("Vertical", 26))
sketch2.addConstraint(Sketcher.Constraint("Vertical", 28))
sketch2.addConstraint(Sketcher.Constraint("Vertical", 30))
sketch2.addConstraint(Sketcher.Constraint("Vertical", 32))
sketch2.addConstraint(Sketcher.Constraint("Vertical", 34))
sketch2.addConstraint(Sketcher.Constraint("Vertical", 36))
sketch2.addConstraint(Sketcher.Constraint("Vertical", 38))
sketch2.addConstraint(Sketcher.Constraint("Vertical", 40))
sketch2.addConstraint(Sketcher.Constraint("Vertical", 42))
sketch2.addConstraint(Sketcher.Constraint("Vertical", 44))
sketch2.addConstraint(Sketcher.Constraint("Vertical", 46))
sketch2.addConstraint(Sketcher.Constraint("Vertical", 48))
sketch2.addConstraint(Sketcher.Constraint("Vertical", 50))
sketch2.addConstraint(Sketcher.Constraint("Vertical", 52))
sketch2.addConstraint(Sketcher.Constraint("Vertical", 54))
sketch2.addConstraint(Sketcher.Constraint("Vertical", 56))
sketch2.addConstraint(Sketcher.Constraint("Vertical", 58))
sketch2.addConstraint(Sketcher.Constraint("Vertical", 60))
sketch2.addConstraint(Sketcher.Constraint("Vertical", 62))
sketch2.addConstraint(Sketcher.Constraint("Vertical", 64))
sketch2.addConstraint(Sketcher.Constraint("Vertical", 66))
sketch2.addConstraint(Sketcher.Constraint("Coincident", 67, 3, -1, 1))
sketch2.addConstraint(Sketcher.Constraint("Equal", 3, 5))
sketch2.addConstraint(Sketcher.Constraint("Equal", 7, 9))
sketch2.addConstraint(Sketcher.Constraint("Equal", 11, 13))
sketch2.addConstraint(Sketcher.Constraint("Equal", 15, 17))
sketch2.addConstraint(Sketcher.Constraint("Equal", 19, 21))
sketch2.addConstraint(Sketcher.Constraint("Equal", 23, 25))
sketch2.addConstraint(Sketcher.Constraint("Equal", 27, 29))
sketch2.addConstraint(Sketcher.Constraint("Equal", 31, 33))
sketch2.addConstraint(Sketcher.Constraint("Equal", 35, 37))
sketch2.addConstraint(Sketcher.Constraint("Equal", 39, 41))
sketch2.addConstraint(Sketcher.Constraint("Equal", 43, 45))
sketch2.addConstraint(Sketcher.Constraint("Equal", 47, 49))
sketch2.addConstraint(Sketcher.Constraint("Equal", 51, 53))
sketch2.addConstraint(Sketcher.Constraint("Equal", 55, 57))
sketch2.addConstraint(Sketcher.Constraint("Equal", 59, 61))
sketch2.addConstraint(Sketcher.Constraint("Equal", 63, 65))
sketch2.addConstraint(Sketcher.Constraint("PointOnObject", 1, 3, -2))
sketch2.addConstraint(Sketcher.Constraint("PointOnObject", 5, 3, -2))
sketch2.addConstraint(Sketcher.Constraint("PointOnObject", 9, 3, -2))
sketch2.addConstraint(Sketcher.Constraint("PointOnObject", 13, 3, -2))
sketch2.addConstraint(Sketcher.Constraint("PointOnObject", 17, 3, -2))
sketch2.addConstraint(Sketcher.Constraint("PointOnObject", 21, 3, -2))
sketch2.addConstraint(Sketcher.Constraint("PointOnObject", 25, 3, -2))
sketch2.addConstraint(Sketcher.Constraint("PointOnObject", 29, 3, -2))
sketch2.addConstraint(Sketcher.Constraint("PointOnObject", 33, 3, -2))
sketch2.addConstraint(Sketcher.Constraint("PointOnObject", 37, 3, -2))
sketch2.addConstraint(Sketcher.Constraint("PointOnObject", 41, 3, -2))
sketch2.addConstraint(Sketcher.Constraint("PointOnObject", 45, 3, -2))
sketch2.addConstraint(Sketcher.Constraint("PointOnObject", 49, 3, -2))
sketch2.addConstraint(Sketcher.Constraint("PointOnObject", 53, 3, -2))
sketch2.addConstraint(Sketcher.Constraint("PointOnObject", 57, 3, -2))
sketch2.addConstraint(Sketcher.Constraint("PointOnObject", 61, 3, -2))
sketch2.addConstraint(Sketcher.Constraint("Equal", 2, 4))
sketch2.addConstraint(Sketcher.Constraint("Equal", 6, 8))
sketch2.addConstraint(Sketcher.Constraint("Equal", 10, 12))
sketch2.addConstraint(Sketcher.Constraint("Equal", 14, 16))
sketch2.addConstraint(Sketcher.Constraint("Equal", 18, 20))
sketch2.addConstraint(Sketcher.Constraint("Equal", 22, 24))
sketch2.addConstraint(Sketcher.Constraint("Equal", 26, 28))
sketch2.addConstraint(Sketcher.Constraint("Equal", 30, 32))
sketch2.addConstraint(Sketcher.Constraint("Equal", 34, 36))
sketch2.addConstraint(Sketcher.Constraint("Equal", 38, 40))
sketch2.addConstraint(Sketcher.Constraint("Equal", 42, 44))
sketch2.addConstraint(Sketcher.Constraint("Equal", 46, 48))
sketch2.addConstraint(Sketcher.Constraint("Equal", 50, 52))
sketch2.addConstraint(Sketcher.Constraint("Equal", 54, 56))
sketch2.addConstraint(Sketcher.Constraint("Equal", 58, 60))
sketch2.addConstraint(Sketcher.Constraint("Equal", 62, 64))
sketch2.addConstraint(Sketcher.Constraint("Radius", 1, 3.1))
sketch2.addConstraint(Sketcher.Constraint("DistanceY", 0, 1, 0, 2, 15.0))
sketch2.addConstraint(Sketcher.Constraint("DistanceY", -1, 1, 1, 3, 390.0))
sketch2.addConstraint(Sketcher.Constraint("DistanceY", -1, 1, 5, 3, 365.0))
sketch2.addConstraint(Sketcher.Constraint("DistanceY", -1, 1, 9, 3, 340.0))
sketch2.addConstraint(Sketcher.Constraint("DistanceY", -1, 1, 13, 3, 315.0))
sketch2.addConstraint(Sketcher.Constraint("DistanceY", -1, 1, 17, 3, 415.0))
sketch2.addConstraint(Sketcher.Constraint("DistanceY", -1, 1, 21, 3, 290.0))
sketch2.addConstraint(Sketcher.Constraint("DistanceY", -1, 1, 25, 3, 265.0))
sketch2.addConstraint(Sketcher.Constraint("DistanceY", -1, 1, 29, 3, 240.0))
sketch2.addConstraint(Sketcher.Constraint("DistanceY", -1, 1, 33, 3, 215.0))
sketch2.addConstraint(Sketcher.Constraint("DistanceY", -1, 1, 37, 3, 190.0))
sketch2.addConstraint(Sketcher.Constraint("DistanceY", -1, 1, 41, 3, 165.0))
sketch2.addConstraint(Sketcher.Constraint("DistanceY", -1, 1, 45, 3, 140.0))
sketch2.addConstraint(Sketcher.Constraint("DistanceY", -1, 1, 49, 3, 115.0))
sketch2.addConstraint(Sketcher.Constraint("DistanceY", -1, 1, 53, 3, 90.0))
sketch2.addConstraint(Sketcher.Constraint("DistanceY", -1, 1, 57, 3, 65.0))
sketch2.addConstraint(Sketcher.Constraint("DistanceY", -1, 1, 61, 3, 40.0))
pocket1 = doc.addObject("PartDesign::Pocket", "Pocket")
body.addObject(pocket1)
pocket1.Profile = sketch2
pocket1.Length = 100
pocket1.Reversed = True

doc.recompute()
